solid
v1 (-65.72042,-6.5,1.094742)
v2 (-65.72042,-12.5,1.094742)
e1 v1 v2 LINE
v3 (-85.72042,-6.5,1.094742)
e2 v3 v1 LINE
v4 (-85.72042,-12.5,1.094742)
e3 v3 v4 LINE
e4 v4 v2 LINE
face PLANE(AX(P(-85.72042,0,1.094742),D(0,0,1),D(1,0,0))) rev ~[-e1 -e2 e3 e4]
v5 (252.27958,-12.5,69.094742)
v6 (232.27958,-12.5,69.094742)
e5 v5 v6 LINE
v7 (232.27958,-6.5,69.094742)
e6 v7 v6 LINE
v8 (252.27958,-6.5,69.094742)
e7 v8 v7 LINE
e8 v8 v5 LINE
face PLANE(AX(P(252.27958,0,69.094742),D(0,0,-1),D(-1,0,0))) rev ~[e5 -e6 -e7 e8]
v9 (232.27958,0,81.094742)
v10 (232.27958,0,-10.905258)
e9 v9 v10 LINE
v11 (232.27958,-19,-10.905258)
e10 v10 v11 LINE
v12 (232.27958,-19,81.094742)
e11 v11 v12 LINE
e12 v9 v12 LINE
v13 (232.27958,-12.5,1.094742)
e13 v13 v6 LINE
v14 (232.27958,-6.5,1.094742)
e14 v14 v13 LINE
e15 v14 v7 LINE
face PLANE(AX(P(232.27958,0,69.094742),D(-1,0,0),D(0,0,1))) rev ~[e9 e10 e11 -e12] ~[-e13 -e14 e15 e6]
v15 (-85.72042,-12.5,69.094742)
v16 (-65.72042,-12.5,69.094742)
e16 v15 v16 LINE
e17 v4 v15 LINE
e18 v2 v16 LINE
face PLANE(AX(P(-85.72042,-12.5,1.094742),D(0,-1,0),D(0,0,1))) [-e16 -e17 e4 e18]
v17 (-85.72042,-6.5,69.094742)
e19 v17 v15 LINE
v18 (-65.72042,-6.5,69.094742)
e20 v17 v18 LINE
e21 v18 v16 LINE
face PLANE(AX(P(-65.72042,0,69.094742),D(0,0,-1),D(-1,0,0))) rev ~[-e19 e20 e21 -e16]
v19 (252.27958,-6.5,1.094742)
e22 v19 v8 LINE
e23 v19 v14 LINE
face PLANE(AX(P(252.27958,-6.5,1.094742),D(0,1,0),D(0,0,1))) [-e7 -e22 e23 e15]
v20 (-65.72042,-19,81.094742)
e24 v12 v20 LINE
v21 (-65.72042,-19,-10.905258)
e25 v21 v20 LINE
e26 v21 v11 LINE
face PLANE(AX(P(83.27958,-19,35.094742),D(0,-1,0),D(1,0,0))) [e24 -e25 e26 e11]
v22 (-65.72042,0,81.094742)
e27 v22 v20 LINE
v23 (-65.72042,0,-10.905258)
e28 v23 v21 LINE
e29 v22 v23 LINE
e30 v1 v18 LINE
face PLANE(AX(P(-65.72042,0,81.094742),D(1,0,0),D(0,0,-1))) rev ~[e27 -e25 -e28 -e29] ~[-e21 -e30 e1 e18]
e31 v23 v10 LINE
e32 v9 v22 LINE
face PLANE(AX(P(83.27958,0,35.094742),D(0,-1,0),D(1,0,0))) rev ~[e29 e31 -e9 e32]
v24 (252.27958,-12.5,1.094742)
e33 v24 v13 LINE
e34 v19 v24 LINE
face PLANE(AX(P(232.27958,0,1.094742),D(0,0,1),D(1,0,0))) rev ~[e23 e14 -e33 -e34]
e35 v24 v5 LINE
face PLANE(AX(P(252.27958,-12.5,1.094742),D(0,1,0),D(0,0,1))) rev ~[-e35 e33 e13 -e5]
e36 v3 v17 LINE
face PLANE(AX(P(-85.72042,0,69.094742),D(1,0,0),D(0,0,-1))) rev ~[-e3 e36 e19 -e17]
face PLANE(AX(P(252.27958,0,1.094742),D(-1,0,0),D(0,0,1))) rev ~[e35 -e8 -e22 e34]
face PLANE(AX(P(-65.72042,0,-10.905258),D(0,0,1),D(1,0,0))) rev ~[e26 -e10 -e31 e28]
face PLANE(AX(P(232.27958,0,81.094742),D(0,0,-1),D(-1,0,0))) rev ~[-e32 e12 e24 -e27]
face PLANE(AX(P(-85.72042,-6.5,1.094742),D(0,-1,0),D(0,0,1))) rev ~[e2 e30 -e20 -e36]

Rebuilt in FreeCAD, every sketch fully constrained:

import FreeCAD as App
import Part
import Sketcher
Q = App.Units.Quantity


def add_polygon(sketch, points):
    """Adds a closed chain of lines whose ends are joined by coincident constraints."""
    first, n = sketch.GeometryCount, len(points)
    for a, b in zip(points, points[1:] + points[:1]):
        sketch.addGeometry(Part.LineSegment(App.Vector(*a, 0), App.Vector(*b, 0)), False)
    for i in range(n):
        sketch.addConstraint(Sketcher.Constraint("Coincident", first + i, 2, first + (i + 1) % n, 1))

doc = App.newDocument("Part")
params = doc.addObject("Spreadsheet::Sheet", "Params")
for row, (alias, value) in enumerate([
    ("sketch1_width", "20 mm"),
    ("sketch1_width2", "298 mm"),
    ("sketch1_height", "68 mm"),
    ("sketch1_height2", "12 mm"),
    ("pad1_length", "19 mm"),
    ("sketch2_height", "68 mm"),
    ("sketch2_width", "6.5 mm"),
    ("pocket1_length", "20 mm"),
    ("sketch3_height", "68 mm"),
    ("sketch3_width", "6.5 mm"),
    ("pocket2_length", "20 mm"),
], start=1):
    params.set(f"A{row}", alias)
    params.set(f"B{row}", "=" + value)
    params.setAlias(f"B{row}", alias)

body = doc.addObject("PartDesign::Body", "Body")

# Sketch on XZ plane
sketch1 = body.newObject("Sketcher::SketchObject", "Sketch")
sketch1.AttachmentSupport = (doc.getObject("XZ_Plane"), [""])
sketch1.MapMode = "FlatFace"
add_polygon(sketch1, [(-66, 69), (-86, 69), (-86, 1), (-66, 1), (-66, -11), (232, -11), (232, 1), (252, 1), (252, 69), (232, 69), (232, 81), (-66, 81)])  # lines 0-11
sketch1.addConstraint(Sketcher.Constraint("Horizontal", 0))
sketch1.addConstraint(Sketcher.Constraint("Vertical", 1))
sketch1.addConstraint(Sketcher.Constraint("Horizontal", 2))
sketch1.addConstraint(Sketcher.Constraint("Vertical", 3))
sketch1.addConstraint(Sketcher.Constraint("Horizontal", 4))
sketch1.addConstraint(Sketcher.Constraint("Vertical", 5))
sketch1.addConstraint(Sketcher.Constraint("Horizontal", 6))
sketch1.addConstraint(Sketcher.Constraint("Vertical", 7))
sketch1.addConstraint(Sketcher.Constraint("Horizontal", 8))
sketch1.addConstraint(Sketcher.Constraint("Vertical", 9))
sketch1.addConstraint(Sketcher.Constraint("Horizontal", 10))
sketch1.addConstraint(Sketcher.Constraint("Vertical", 11))
sketch1.addConstraint(Sketcher.Constraint("Horizontal", 2, 2, 5, 2))
sketch1.addConstraint(Sketcher.Constraint("Horizontal", 0, 2, 7, 2))
sketch1.addConstraint(Sketcher.Constraint("Vertical", 5, 2, 8, 2))
sketch1.addConstraint(Sketcher.Constraint("Vertical", 3, 2, 10, 2))
sketch1.addConstraint(Sketcher.Constraint("Equal", 2, 6))
sketch1.addConstraint(Sketcher.Constraint("Equal", 5, 9))
sketch1.addConstraint(Sketcher.Constraint("DistanceX", 0, 2, 0, 1, Q("20 mm")))
sketch1.addConstraint(Sketcher.Constraint("DistanceX", 4, 1, 4, 2, Q("298 mm")))
sketch1.addConstraint(Sketcher.Constraint("DistanceY", 1, 2, 1, 1, Q("68 mm")))
sketch1.addConstraint(Sketcher.Constraint("DistanceY", 3, 2, 3, 1, Q("12 mm")))
sketch1.addConstraint(Sketcher.Constraint("DistanceX", 0, 2, -1, 1, Q("85.72042 mm")))
sketch1.addConstraint(Sketcher.Constraint("DistanceY", -1, 1, 0, 2, Q("69.094742 mm")))
sketch1.setExpression("Constraints[30]", "Params.sketch1_width")
sketch1.setExpression("Constraints[31]", "Params.sketch1_width2")
sketch1.setExpression("Constraints[32]", "Params.sketch1_height")
sketch1.setExpression("Constraints[33]", "Params.sketch1_height2")
pad1 = body.newObject("PartDesign::Pad", "Pad")
pad1.Profile = sketch1
pad1.setExpression("Length", "Params.pad1_length")

# Sketch on YZ plane
sketch2 = body.newObject("Sketcher::SketchObject", "Sketch001")
sketch2.AttachmentSupport = (doc.getObject("YZ_Plane"), [""])
sketch2.MapMode = "FlatFace"
sketch2.AttachmentOffset = App.Placement(App.Vector(0, 0, 252.27958), App.Rotation())
add_polygon(sketch2, [(-19, 69), (-19, 1), (-12, 1), (-12, 69)])  # lines 0-3
add_polygon(sketch2, [(-6, 69), (-6, 1), (0, 1), (0, 69)])  # lines 4-7
sketch2.addConstraint(Sketcher.Constraint("Vertical", 0))
sketch2.addConstraint(Sketcher.Constraint("Horizontal", 1))
sketch2.addConstraint(Sketcher.Constraint("Vertical", 2))
sketch2.addConstraint(Sketcher.Constraint("Horizontal", 3))
sketch2.addConstraint(Sketcher.Constraint("Vertical", 4))
sketch2.addConstraint(Sketcher.Constraint("Horizontal", 5))
sketch2.addConstraint(Sketcher.Constraint("Vertical", 6))
sketch2.addConstraint(Sketcher.Constraint("Horizontal", 7))
sketch2.addConstraint(Sketcher.Constraint("PointOnObject", 5, 2, -2))
sketch2.addConstraint(Sketcher.Constraint("Horizontal", 1, 2, 4, 2))
sketch2.addConstraint(Sketcher.Constraint("Horizontal", 3, 2, 6, 2))
sketch2.addConstraint(Sketcher.Constraint("Equal", 3, 5))
sketch2.addConstraint(Sketcher.Constraint("DistanceY", 0, 2, 0, 1, Q("68 mm")))
sketch2.addConstraint(Sketcher.Constraint("DistanceX", 1, 1, 1, 2, Q("6.5 mm")))
sketch2.addConstraint(Sketcher.Constraint("DistanceX", 0, 2, -1, 1, Q("19 mm")))
sketch2.addConstraint(Sketcher.Constraint("DistanceY", -1, 1, 2, 2, Q("69.094742 mm")))
sketch2.setExpression("Constraints[20]", "Params.sketch2_height")
sketch2.setExpression("Constraints[21]", "Params.sketch2_width")
pocket1 = body.newObject("PartDesign::Pocket", "Pocket")
pocket1.Profile = sketch2
pocket1.setExpression("Length", "Params.pocket1_length")

# Sketch on YZ plane
sketch3 = body.newObject("Sketcher::SketchObject", "Sketch002")
sketch3.AttachmentSupport = (doc.getObject("YZ_Plane"), [""])
sketch3.MapMode = "FlatFace"
sketch3.AttachmentOffset = App.Placement(App.Vector(0, 0, -85.72042), App.Rotation())
add_polygon(sketch3, [(0, 69), (0, 1), (-6, 1), (-6, 69)])  # lines 0-3
add_polygon(sketch3, [(-12, 69), (-12, 1), (-19, 1), (-19, 69)])  # lines 4-7
sketch3.addConstraint(Sketcher.Constraint("Vertical", 0))
sketch3.addConstraint(Sketcher.Constraint("Horizontal", 1))
sketch3.addConstraint(Sketcher.Constraint("Vertical", 2))
sketch3.addConstraint(Sketcher.Constraint("Horizontal", 3))
sketch3.addConstraint(Sketcher.Constraint("Vertical", 4))
sketch3.addConstraint(Sketcher.Constraint("Horizontal", 5))
sketch3.addConstraint(Sketcher.Constraint("Vertical", 6))
sketch3.addConstraint(Sketcher.Constraint("Horizontal", 7))
sketch3.addConstraint(Sketcher.Constraint("PointOnObject", 0, 2, -2))
sketch3.addConstraint(Sketcher.Constraint("Horizontal", 1, 2, 4, 2))
sketch3.addConstraint(Sketcher.Constraint("Horizontal", 3, 2, 6, 2))
sketch3.addConstraint(Sketcher.Constraint("Equal", 3, 5))
sketch3.addConstraint(Sketcher.Constraint("DistanceY", 0, 2, 0, 1, Q("68 mm")))
sketch3.addConstraint(Sketcher.Constraint("DistanceX", 1, 2, 1, 1, Q("6.5 mm")))
sketch3.addConstraint(Sketcher.Constraint("DistanceX", 5, 2, -1, 1, Q("19 mm")))
sketch3.addConstraint(Sketcher.Constraint("DistanceY", -1, 1, 2, 2, Q("69.094742 mm")))
sketch3.setExpression("Constraints[20]", "Params.sketch3_height")
sketch3.setExpression("Constraints[21]", "Params.sketch3_width")
pocket2 = body.newObject("PartDesign::Pocket", "Pocket001")
pocket2.Profile = sketch3
pocket2.setExpression("Length", "Params.pocket2_length")
pocket2.Reversed = True

doc.recompute()
